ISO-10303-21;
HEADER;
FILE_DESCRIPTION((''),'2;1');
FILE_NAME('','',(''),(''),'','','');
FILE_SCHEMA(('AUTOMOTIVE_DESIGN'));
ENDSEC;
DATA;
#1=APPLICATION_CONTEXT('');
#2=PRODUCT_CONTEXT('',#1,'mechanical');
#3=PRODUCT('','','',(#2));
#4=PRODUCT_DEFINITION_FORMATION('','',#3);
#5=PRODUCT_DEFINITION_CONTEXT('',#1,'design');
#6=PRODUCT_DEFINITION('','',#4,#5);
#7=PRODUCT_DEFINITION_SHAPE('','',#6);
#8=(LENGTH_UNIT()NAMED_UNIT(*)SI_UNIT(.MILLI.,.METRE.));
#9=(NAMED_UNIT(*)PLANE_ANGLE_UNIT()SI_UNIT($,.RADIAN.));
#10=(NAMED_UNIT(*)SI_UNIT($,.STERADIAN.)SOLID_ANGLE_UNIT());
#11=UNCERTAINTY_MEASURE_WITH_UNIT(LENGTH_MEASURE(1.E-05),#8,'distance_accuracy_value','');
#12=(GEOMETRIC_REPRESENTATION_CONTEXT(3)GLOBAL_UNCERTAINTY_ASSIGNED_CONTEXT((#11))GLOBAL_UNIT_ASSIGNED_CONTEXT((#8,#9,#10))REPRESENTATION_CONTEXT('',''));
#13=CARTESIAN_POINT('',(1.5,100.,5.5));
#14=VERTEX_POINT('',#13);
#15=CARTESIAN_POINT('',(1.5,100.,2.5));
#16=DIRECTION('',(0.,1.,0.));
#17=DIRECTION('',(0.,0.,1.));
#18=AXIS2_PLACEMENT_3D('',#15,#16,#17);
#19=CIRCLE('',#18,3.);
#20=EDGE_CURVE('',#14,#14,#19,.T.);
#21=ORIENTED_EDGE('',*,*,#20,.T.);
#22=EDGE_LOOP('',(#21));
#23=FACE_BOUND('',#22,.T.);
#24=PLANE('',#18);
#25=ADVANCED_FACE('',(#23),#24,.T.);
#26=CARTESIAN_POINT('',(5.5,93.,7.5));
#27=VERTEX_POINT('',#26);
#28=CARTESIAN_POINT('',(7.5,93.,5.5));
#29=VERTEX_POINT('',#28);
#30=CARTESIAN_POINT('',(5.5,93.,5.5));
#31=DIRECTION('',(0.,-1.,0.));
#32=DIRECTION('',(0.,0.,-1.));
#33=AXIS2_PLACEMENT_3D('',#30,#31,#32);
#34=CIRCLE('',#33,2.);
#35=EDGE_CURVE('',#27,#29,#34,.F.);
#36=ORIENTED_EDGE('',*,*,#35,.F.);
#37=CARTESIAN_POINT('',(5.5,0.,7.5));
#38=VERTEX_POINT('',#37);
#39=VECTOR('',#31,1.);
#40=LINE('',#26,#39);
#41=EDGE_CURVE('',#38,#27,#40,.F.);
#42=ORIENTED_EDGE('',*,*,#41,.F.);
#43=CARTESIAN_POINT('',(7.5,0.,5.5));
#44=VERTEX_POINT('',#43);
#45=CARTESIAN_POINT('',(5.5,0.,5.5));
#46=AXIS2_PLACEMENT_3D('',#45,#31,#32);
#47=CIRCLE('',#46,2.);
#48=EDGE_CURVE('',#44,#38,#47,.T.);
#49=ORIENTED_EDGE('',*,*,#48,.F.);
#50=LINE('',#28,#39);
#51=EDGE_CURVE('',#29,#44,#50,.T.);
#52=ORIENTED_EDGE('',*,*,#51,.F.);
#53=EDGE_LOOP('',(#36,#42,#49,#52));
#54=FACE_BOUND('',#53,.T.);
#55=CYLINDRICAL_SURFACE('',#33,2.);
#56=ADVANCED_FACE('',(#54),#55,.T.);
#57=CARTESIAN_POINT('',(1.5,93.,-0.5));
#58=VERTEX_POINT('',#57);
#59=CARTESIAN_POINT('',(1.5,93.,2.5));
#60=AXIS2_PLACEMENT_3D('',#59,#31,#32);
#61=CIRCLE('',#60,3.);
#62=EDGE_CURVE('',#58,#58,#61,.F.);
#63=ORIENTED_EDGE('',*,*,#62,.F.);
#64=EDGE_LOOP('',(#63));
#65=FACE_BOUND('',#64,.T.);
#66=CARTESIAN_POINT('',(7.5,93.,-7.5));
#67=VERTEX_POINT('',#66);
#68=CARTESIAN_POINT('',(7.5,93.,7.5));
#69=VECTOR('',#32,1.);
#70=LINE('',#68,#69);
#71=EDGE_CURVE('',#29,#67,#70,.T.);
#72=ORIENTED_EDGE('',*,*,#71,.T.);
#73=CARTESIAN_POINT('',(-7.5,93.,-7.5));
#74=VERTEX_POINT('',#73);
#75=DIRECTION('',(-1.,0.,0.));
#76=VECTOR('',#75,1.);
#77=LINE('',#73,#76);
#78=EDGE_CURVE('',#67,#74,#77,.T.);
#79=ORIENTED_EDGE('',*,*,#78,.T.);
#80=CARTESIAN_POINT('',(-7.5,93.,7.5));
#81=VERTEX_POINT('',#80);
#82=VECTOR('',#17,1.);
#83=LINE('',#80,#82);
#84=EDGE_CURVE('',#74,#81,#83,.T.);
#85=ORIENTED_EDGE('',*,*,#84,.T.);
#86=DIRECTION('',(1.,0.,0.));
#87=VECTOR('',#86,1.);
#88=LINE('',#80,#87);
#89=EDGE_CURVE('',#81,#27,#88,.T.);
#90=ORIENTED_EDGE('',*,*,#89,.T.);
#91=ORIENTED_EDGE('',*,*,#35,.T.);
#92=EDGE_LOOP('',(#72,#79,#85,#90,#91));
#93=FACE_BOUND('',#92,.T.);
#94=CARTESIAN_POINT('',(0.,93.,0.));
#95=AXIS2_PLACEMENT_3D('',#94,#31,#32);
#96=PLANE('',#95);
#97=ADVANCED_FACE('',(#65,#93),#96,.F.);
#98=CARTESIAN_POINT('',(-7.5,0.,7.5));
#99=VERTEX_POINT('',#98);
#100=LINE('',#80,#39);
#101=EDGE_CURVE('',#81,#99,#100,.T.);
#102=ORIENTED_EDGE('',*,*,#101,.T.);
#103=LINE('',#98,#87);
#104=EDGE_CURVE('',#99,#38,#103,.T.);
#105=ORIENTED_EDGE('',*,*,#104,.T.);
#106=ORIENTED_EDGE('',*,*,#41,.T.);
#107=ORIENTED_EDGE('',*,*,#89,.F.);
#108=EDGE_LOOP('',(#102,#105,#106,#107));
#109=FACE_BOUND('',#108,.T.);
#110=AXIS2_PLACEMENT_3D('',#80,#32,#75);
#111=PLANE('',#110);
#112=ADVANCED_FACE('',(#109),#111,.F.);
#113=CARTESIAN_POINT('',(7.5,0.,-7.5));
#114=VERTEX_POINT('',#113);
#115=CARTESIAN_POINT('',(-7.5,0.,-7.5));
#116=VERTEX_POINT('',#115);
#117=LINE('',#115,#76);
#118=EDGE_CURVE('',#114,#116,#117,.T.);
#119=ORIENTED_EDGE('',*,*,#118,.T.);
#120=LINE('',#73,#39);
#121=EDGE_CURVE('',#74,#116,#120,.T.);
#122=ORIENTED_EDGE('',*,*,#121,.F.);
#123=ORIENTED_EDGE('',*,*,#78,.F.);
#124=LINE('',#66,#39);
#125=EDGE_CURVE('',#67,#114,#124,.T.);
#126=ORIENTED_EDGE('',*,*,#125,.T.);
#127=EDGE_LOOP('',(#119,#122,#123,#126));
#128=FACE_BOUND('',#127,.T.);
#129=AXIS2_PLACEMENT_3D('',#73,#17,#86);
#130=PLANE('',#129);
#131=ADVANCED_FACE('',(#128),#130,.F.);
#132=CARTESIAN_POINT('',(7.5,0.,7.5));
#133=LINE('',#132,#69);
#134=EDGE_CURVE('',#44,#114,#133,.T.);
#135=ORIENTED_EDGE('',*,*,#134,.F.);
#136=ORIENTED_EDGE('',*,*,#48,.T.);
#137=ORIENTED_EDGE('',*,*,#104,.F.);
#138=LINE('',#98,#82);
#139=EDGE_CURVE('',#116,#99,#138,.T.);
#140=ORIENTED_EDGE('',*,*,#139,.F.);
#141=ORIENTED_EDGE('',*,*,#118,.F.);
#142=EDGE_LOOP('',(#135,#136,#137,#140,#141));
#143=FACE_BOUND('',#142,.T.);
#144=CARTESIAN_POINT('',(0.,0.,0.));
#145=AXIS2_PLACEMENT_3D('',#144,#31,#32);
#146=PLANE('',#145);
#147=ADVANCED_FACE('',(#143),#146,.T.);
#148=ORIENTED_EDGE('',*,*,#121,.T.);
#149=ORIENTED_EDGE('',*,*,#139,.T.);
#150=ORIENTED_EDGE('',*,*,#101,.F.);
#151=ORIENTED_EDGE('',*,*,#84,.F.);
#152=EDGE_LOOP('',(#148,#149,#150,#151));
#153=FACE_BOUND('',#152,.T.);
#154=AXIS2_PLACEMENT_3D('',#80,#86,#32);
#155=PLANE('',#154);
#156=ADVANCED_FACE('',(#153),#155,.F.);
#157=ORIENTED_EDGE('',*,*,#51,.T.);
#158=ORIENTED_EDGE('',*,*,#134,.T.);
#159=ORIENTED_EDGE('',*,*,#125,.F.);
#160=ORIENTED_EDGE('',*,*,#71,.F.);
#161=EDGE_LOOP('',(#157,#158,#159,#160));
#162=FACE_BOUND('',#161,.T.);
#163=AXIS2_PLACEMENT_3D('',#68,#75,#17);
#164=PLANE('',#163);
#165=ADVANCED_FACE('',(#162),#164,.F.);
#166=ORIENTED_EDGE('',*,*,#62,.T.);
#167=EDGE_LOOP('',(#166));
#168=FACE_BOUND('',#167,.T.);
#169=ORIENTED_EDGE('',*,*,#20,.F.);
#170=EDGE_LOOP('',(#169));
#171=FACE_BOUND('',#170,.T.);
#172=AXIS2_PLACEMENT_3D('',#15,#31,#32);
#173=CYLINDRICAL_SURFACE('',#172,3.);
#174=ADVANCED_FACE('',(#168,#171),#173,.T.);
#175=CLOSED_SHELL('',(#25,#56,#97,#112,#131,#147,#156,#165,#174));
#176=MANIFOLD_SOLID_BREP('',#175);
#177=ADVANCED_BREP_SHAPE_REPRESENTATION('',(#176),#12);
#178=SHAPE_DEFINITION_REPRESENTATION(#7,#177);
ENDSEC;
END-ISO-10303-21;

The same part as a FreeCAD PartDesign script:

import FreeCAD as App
import Part
import Sketcher

V = App.Vector


def edges_at(feature, points):
    """Names of the edges that pass closest to the given points."""
    edges = feature.Shape.Edges
    near = lambda p: min(range(len(edges)), key=lambda i: edges[i].distToShape(Part.Vertex(*p))[0])
    return sorted({f"Edge{near(p) + 1}" for p in points})


def add_polygon(sketch, points):
    """Adds a closed chain of lines whose ends are joined by coincident constraints."""
    first, n = sketch.GeometryCount, len(points)
    for a, b in zip(points, points[1:] + points[:1]):
        sketch.addGeometry(Part.LineSegment(App.Vector(*a, 0), App.Vector(*b, 0)), False)
    for i in range(n):
        sketch.addConstraint(Sketcher.Constraint("Coincident", first + i, 2, first + (i + 1) % n, 1))

doc = App.newDocument("Part")
body = doc.addObject("PartDesign::Body", "Body")

sketch1 = body.newObject("Sketcher::SketchObject", "Sketch")
sketch1.AttachmentSupport = (doc.getObject("XZ_Plane"), [""])
sketch1.MapMode = "FlatFace"
add_polygon(sketch1, [(-8, -8), (-8, 8), (8, 8), (8, -8)])
sketch1.addConstraint(Sketcher.Constraint("Vertical", 0))
sketch1.addConstraint(Sketcher.Constraint("Horizontal", 1))
sketch1.addConstraint(Sketcher.Constraint("Vertical", 2))
sketch1.addConstraint(Sketcher.Constraint("Horizontal", 3))
sketch1.addConstraint(Sketcher.Constraint("Symmetric", 0, 2, 2, 2, -1, 1))
sketch1.addConstraint(Sketcher.Constraint("Equal", 3, 0))
sketch1.addConstraint(Sketcher.Constraint("DistanceX", 1, 1, 1, 2, 15.0))
pad1 = body.newObject("PartDesign::Pad", "Pad")
pad1.Profile = sketch1
pad1.Length = 93
pad1.Reversed = True

sketch2 = body.newObject("Sketcher::SketchObject", "Sketch001")
sketch2.AttachmentSupport = (doc.getObject("XZ_Plane"), [""])
sketch2.MapMode = "FlatFace"
sketch2.AttachmentOffset = App.Placement(V(0, 0, -93), App.Rotation())
sketch2.addGeometry(Part.Circle(V(1.5, 2.5, 0), V(0, 0, 1), 3), False)
sketch2.addConstraint(Sketcher.Constraint("Diameter", 0, 6.0))
sketch2.addConstraint(Sketcher.Constraint("DistanceX", -1, 1, 0, 3, 1.5))
sketch2.addConstraint(Sketcher.Constraint("DistanceY", -1, 1, 0, 3, 2.5))
pad2 = body.newObject("PartDesign::Pad", "Pad001")
pad2.Profile = sketch2
pad2.Length = 7
pad2.Reversed = True
doc.recompute()

fillet = body.newObject("PartDesign::Fillet", "Fillet")
fillet.Base = (pad2, edges_at(pad2, [(7.5, 46.5, 7.5)]))
fillet.Radius = 2

doc.recompute()
